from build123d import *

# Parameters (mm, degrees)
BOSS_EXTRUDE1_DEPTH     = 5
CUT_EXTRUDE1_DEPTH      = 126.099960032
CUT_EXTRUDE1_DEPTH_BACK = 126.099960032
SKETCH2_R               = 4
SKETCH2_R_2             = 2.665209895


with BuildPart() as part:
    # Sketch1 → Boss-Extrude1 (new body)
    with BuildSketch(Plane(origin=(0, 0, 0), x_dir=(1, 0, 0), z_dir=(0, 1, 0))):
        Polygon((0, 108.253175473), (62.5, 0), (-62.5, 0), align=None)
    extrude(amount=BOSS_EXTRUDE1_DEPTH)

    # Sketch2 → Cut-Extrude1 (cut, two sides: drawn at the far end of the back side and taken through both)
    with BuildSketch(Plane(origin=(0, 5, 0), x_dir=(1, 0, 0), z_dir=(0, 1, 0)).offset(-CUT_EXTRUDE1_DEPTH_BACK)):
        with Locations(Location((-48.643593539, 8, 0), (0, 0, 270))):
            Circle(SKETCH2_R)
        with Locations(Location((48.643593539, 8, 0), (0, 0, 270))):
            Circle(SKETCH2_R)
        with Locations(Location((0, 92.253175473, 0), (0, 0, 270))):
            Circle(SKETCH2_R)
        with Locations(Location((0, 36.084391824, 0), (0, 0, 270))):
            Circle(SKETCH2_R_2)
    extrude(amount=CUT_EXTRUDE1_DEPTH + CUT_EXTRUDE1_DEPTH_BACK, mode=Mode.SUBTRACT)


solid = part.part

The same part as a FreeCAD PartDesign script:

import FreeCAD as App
import Part
import Sketcher
Q = App.Units.Quantity

doc = App.newDocument("Part")
body = doc.addObject("PartDesign::Body", "Body")

# Sketch on XZ plane
sketch1 = body.newObject("Sketcher::SketchObject", "Sketch")
sketch1.AttachmentSupport = (doc.getObject("XZ_Plane"), [""])
sketch1.MapMode = "FlatFace"
sketch1.addGeometry([
    Part.LineSegment(App.Vector(62, 0, 0), App.Vector(0, -108, 0)),
    Part.LineSegment(App.Vector(0, -108, 0), App.Vector(-62, 0, 0)),
    Part.LineSegment(App.Vector(-62, 0, 0), App.Vector(62, 0, 0)),
], False)
sketch1.addConstraint([
    Sketcher.Constraint("Coincident", 0, 2, 1, 1),
    Sketcher.Constraint("Coincident", 1, 2, 2, 1),
    Sketcher.Constraint("Coincident", 2, 2, 0, 1),
    Sketcher.Constraint("Horizontal", 2),
    Sketcher.Constraint("Symmetric", 1, 2, 2, 2, -1, 1),
    Sketcher.Constraint("PointOnObject", 0, 2, -2),
    Sketcher.Constraint("DistanceX", 2, 1, 2, 2, Q("125 mm")),
    Sketcher.Constraint("Angle", 0, Q("-120 deg")),
])
pad1 = body.newObject("PartDesign::Pad", "Pad")
pad1.Profile = sketch1
pad1.Length = 5
pad1.Reversed = True

# Sketch on XZ plane
sketch2 = body.newObject("Sketcher::SketchObject", "Sketch001")
sketch2.AttachmentSupport = (doc.getObject("XZ_Plane"), [""])
sketch2.MapMode = "FlatFace"
sketch2.AttachmentOffset = App.Placement(App.Vector(0, 0, -5), App.Rotation())
sketch2.addGeometry([
    Part.Circle(App.Vector(-48.6, -8, 0), App.Vector(0, 0, 1), 4),
    Part.Circle(App.Vector(48.6, -8, 0), App.Vector(0, 0, 1), 4),
    Part.Circle(App.Vector(0, -92.3, 0), App.Vector(0, 0, 1), 4),
    Part.Circle(App.Vector(0, -36.1, 0), App.Vector(0, 0, 1), 2.7),
], False)
sketch2.addConstraint([
    Sketcher.Constraint("Equal", 0, 1),
    Sketcher.Constraint("Equal", 1, 2),
    Sketcher.Constraint("Symmetric", 0, 3, 1, 3, -2),
    Sketcher.Constraint("PointOnObject", 2, 3, -2),
    Sketcher.Constraint("PointOnObject", 3, 3, -2),
    Sketcher.Constraint("Diameter", 0, Q("8 mm")),
    Sketcher.Constraint("DistanceY", 0, 3, -1, 1, Q("8 mm")),
    Sketcher.Constraint("Diameter", 3, Q("5.33042 mm")),
    Sketcher.Constraint("DistanceY", 3, 3, -1, 1, Q("36.084392 mm")),
    Sketcher.Constraint("DistanceX", 0, 3, -1, 1, Q("48.643594 mm")),
    Sketcher.Constraint("DistanceY", 2, 3, -1, 1, Q("92.253175 mm")),
])
pocket1 = body.newObject("PartDesign::Pocket", "Pocket")
pocket1.Profile = sketch2
pocket1.Type = "ThroughAll"
pocket1.Midplane = True

doc.recompute()
